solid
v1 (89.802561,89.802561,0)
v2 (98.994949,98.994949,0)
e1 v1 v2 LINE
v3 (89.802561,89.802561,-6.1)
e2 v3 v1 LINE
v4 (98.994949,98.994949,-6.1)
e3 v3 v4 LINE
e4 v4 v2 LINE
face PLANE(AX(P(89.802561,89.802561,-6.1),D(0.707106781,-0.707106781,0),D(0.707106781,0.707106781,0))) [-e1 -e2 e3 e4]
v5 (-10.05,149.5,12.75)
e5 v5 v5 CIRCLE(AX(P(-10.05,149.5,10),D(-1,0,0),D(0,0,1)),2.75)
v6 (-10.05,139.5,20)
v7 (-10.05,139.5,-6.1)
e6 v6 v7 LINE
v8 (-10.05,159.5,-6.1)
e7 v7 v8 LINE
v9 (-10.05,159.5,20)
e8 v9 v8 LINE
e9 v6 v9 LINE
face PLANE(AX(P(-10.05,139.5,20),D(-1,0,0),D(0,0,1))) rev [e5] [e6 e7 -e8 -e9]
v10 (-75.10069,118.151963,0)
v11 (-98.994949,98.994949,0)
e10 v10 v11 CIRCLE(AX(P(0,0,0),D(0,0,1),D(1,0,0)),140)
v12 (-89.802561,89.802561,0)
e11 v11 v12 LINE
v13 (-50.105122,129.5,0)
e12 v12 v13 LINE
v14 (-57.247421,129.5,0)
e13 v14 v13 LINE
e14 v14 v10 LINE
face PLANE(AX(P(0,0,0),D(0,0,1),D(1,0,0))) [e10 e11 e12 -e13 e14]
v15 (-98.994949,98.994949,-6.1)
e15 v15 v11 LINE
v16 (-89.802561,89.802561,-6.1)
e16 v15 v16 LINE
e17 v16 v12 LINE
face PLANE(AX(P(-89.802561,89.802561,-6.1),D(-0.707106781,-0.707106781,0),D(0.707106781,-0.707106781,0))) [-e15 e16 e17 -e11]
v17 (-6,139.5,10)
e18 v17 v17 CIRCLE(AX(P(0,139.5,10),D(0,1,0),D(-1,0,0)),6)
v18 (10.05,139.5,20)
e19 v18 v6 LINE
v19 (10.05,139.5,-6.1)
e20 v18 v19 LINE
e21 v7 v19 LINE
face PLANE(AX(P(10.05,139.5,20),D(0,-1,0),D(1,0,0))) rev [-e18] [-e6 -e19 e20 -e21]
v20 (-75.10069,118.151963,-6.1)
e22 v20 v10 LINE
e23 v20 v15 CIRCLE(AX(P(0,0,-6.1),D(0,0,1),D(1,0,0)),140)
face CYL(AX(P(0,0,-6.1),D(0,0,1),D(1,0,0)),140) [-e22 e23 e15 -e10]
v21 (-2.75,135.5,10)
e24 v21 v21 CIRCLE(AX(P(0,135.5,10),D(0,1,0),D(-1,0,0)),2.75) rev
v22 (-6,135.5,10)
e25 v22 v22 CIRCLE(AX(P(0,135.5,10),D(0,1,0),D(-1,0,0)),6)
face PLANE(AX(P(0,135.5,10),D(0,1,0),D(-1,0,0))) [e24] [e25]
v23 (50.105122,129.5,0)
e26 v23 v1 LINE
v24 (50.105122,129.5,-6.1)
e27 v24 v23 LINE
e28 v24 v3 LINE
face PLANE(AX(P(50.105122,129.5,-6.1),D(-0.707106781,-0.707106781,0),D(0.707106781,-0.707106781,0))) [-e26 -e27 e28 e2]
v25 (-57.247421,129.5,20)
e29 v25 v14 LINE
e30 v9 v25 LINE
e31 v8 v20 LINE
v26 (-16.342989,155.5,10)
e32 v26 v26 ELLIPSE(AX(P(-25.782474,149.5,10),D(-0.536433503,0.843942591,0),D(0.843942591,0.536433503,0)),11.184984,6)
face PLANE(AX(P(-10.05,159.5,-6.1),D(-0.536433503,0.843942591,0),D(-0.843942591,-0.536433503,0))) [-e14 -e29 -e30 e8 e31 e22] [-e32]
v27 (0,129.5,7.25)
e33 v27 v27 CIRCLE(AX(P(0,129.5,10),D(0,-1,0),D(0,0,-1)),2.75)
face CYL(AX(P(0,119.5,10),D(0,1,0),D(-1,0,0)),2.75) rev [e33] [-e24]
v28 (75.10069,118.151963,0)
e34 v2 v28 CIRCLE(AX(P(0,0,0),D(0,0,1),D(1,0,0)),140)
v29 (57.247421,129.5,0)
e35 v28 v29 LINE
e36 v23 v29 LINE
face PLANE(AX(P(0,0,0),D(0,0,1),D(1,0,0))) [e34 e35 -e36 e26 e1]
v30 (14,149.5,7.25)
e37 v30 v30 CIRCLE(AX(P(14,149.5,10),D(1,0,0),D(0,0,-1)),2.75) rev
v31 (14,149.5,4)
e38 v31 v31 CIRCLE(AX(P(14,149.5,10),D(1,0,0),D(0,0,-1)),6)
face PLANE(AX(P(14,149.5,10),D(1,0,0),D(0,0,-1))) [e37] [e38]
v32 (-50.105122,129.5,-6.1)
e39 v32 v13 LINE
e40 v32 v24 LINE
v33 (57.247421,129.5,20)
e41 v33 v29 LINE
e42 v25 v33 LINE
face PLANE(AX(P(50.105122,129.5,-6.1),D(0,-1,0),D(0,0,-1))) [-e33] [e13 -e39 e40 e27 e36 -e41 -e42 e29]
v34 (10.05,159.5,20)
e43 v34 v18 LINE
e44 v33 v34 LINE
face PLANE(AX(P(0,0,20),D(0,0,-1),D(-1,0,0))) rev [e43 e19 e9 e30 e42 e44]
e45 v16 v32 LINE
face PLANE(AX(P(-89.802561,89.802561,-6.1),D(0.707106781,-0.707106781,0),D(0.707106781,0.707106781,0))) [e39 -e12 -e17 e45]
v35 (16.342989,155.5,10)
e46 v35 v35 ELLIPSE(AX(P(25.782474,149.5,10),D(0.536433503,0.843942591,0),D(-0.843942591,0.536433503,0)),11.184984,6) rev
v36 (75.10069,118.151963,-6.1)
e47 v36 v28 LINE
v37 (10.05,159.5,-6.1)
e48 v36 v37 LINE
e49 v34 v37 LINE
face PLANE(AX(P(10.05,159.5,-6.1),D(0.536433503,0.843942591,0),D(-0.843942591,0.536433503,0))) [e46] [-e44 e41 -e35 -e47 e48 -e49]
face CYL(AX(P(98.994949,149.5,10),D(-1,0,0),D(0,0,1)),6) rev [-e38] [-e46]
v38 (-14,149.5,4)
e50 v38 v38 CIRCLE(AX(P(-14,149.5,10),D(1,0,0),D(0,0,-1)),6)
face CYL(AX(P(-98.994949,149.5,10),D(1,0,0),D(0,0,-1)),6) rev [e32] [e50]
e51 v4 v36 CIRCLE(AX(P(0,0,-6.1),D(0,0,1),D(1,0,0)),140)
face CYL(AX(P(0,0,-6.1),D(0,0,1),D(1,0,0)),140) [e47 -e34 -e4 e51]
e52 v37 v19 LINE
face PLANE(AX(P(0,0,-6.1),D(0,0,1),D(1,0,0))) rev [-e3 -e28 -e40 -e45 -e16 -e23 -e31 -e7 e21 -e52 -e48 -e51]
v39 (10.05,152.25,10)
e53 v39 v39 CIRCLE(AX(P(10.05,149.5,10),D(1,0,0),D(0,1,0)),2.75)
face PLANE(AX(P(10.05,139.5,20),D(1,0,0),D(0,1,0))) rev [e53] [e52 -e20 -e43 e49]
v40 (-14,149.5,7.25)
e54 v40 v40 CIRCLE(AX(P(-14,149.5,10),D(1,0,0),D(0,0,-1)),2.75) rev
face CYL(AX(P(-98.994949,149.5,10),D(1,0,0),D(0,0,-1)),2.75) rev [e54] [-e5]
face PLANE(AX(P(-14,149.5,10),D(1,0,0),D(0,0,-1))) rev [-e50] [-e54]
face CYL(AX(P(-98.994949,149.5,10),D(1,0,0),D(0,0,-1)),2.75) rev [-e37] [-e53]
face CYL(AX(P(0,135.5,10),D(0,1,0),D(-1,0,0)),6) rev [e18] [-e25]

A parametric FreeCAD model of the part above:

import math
import FreeCAD as App
import Part
import Sketcher

doc = App.newDocument("Part")
body = doc.addObject("PartDesign::Body", "Body")

# Sketch on XY plane
sketch1 = body.newObject("Sketcher::SketchObject", "Sketch")
sketch1.AttachmentSupport = (doc.getObject("XY_Plane"), [""])
sketch1.MapMode = "FlatFace"
sketch1.addGeometry([
    Part.LineSegment(App.Vector(-90, 90, 0), App.Vector(-50, 130, 0)),  # 0
    Part.LineSegment(App.Vector(-50, 130, 0), App.Vector(50, 130, 0)),  # 1
    Part.LineSegment(App.Vector(50, 130, 0), App.Vector(90, 90, 0)),  # 2
    Part.LineSegment(App.Vector(90, 90, 0), App.Vector(99, 99, 0)),  # 3
    Part.ArcOfCircle(Part.Circle(App.Vector(0, 0, 0), App.Vector(0, 0, 1), 140), math.radians(45), math.radians(135)),  # 4
    Part.LineSegment(App.Vector(-99, 99, 0), App.Vector(-90, 90, 0)),  # 5
], False)
sketch1.addConstraint([
    Sketcher.Constraint("Coincident", 0, 2, 1, 1),
    Sketcher.Constraint("Coincident", 1, 2, 2, 1),
    Sketcher.Constraint("Coincident", 2, 2, 3, 1),
    Sketcher.Constraint("Coincident", 3, 2, 4, 1),
    Sketcher.Constraint("Coincident", 4, 2, 5, 1),
    Sketcher.Constraint("Coincident", 5, 2, 0, 1),
    Sketcher.Constraint("Horizontal", 1),
    Sketcher.Constraint("Coincident", 4, 3, -1, 1),
    Sketcher.Constraint("Symmetric", 2, 2, 5, 2, -2),
    Sketcher.Constraint("Perpendicular", 0, 2),
    Sketcher.Constraint("Perpendicular", 2, 3),
    Sketcher.Constraint("Perpendicular", 3, 5),
    Sketcher.Constraint("Equal", 0, 2),
    Sketcher.Constraint("Radius", 4, 140.0),
    Sketcher.Constraint("Distance", 3, 13.0),
    Sketcher.Constraint("DistanceY", -1, 1, 0, 2, 129.5),
    Sketcher.Constraint("DistanceX", 4, 2, 3, 2, 197.989899),
])
pad1 = body.newObject("PartDesign::Pad", "Pad")
pad1.Profile = sketch1
pad1.Length = 6.1
pad1.Reversed = True

# Sketch on XY plane
sketch2 = body.newObject("Sketcher::SketchObject", "Sketch001")
sketch2.AttachmentSupport = (doc.getObject("XY_Plane"), [""])
sketch2.MapMode = "FlatFace"
sketch2.addGeometry([
    Part.LineSegment(App.Vector(10.1, 139.5, 0), App.Vector(-10.1, 139.5, 0)),  # 0
    Part.LineSegment(App.Vector(-10.1, 139.5, 0), App.Vector(-10.1, 159.5, 0)),  # 1
    Part.LineSegment(App.Vector(-10.1, 159.5, 0), App.Vector(-50.1, 130.7, 0)),  # 2
    Part.LineSegment(App.Vector(-50.1, 130.7, 0), App.Vector(-50.1, 129.5, 0)),  # 3
    Part.LineSegment(App.Vector(-50.1, 129.5, 0), App.Vector(50.1, 129.5, 0)),  # 4
    Part.LineSegment(App.Vector(50.1, 129.5, 0), App.Vector(50.1, 130.7, 0)),  # 5
    Part.LineSegment(App.Vector(50.1, 130.7, 0), App.Vector(10.1, 159.5, 0)),  # 6
    Part.LineSegment(App.Vector(10.1, 159.5, 0), App.Vector(10.1, 139.5, 0)),  # 7
], False)
sketch2.addConstraint([
    Sketcher.Constraint("Coincident", 0, 2, 1, 1),
    Sketcher.Constraint("Coincident", 1, 2, 2, 1),
    Sketcher.Constraint("Coincident", 2, 2, 3, 1),
    Sketcher.Constraint("Coincident", 3, 2, 4, 1),
    Sketcher.Constraint("Coincident", 4, 2, 5, 1),
    Sketcher.Constraint("Coincident", 5, 2, 6, 1),
    Sketcher.Constraint("Coincident", 6, 2, 7, 1),
    Sketcher.Constraint("Coincident", 7, 2, 0, 1),
    Sketcher.Constraint("Horizontal", 0),
    Sketcher.Constraint("Vertical", 1),
    Sketcher.Constraint("Vertical", 3),
    Sketcher.Constraint("Horizontal", 4),
    Sketcher.Constraint("Vertical", 5),
    Sketcher.Constraint("Vertical", 7),
    Sketcher.Constraint("Symmetric", 2, 2, 5, 2, -2),
    Sketcher.Constraint("Symmetric", 1, 2, 6, 2, -2),
    Sketcher.Constraint("DistanceY", 1, 1, 1, 2, 20.0),
    Sketcher.Constraint("DistanceX", 0, 2, 0, 1, 20.1),
    Sketcher.Constraint("DistanceY", 3, 2, 0, 2, 10.0),
    Sketcher.Constraint("DistanceY", -1, 1, 0, 2, 139.5),
    Sketcher.Constraint("DistanceX", 4, 1, 4, 2, 100.210245),
    Sketcher.Constraint("DistanceY", 3, 2, 3, 1, 1.226725),
])
pad2 = body.newObject("PartDesign::Pad", "Pad001")
pad2.Profile = sketch2
pad2.Length = 20

# Sketch on XY plane
sketch3 = body.newObject("Sketcher::SketchObject", "Sketch002")
sketch3.AttachmentSupport = (doc.getObject("XY_Plane"), [""])
sketch3.MapMode = "FlatFace"
sketch3.addGeometry([
    Part.LineSegment(App.Vector(-10, 160, 0), App.Vector(-75, 118, 0)),  # 0
    Part.ArcOfCircle(Part.Circle(App.Vector(0, 0, 0), App.Vector(0, 0, 1), 140), math.radians(122.44), math.radians(135)),  # 1
    Part.LineSegment(App.Vector(-99, 99, 0), App.Vector(-90, 90, 0)),  # 2
    Part.LineSegment(App.Vector(-90, 90, 0), App.Vector(-50, 130, 0)),  # 3
    Part.LineSegment(App.Vector(-50, 130, 0), App.Vector(50, 130, 0)),  # 4
    Part.LineSegment(App.Vector(50, 130, 0), App.Vector(90, 90, 0)),  # 5
    Part.LineSegment(App.Vector(90, 90, 0), App.Vector(99, 99, 0)),  # 6
    Part.ArcOfCircle(Part.Circle(App.Vector(0, 0, 0), App.Vector(0, 0, 1), 140), math.radians(45), math.radians(57.56)),  # 7
    Part.LineSegment(App.Vector(75, 118, 0), App.Vector(10, 160, 0)),  # 8
    Part.LineSegment(App.Vector(10, 160, 0), App.Vector(10, 140, 0)),  # 9
    Part.LineSegment(App.Vector(10, 140, 0), App.Vector(-10, 140, 0)),  # 10
    Part.LineSegment(App.Vector(-10, 140, 0), App.Vector(-10, 160, 0)),  # 11
], False)
sketch3.addConstraint([
    Sketcher.Constraint("Tangent", 0, 2, 1, 1),
    Sketcher.Constraint("Coincident", 1, 2, 2, 1),
    Sketcher.Constraint("Coincident", 2, 2, 3, 1),
    Sketcher.Constraint("Coincident", 3, 2, 4, 1),
    Sketcher.Constraint("Coincident", 4, 2, 5, 1),
    Sketcher.Constraint("Coincident", 5, 2, 6, 1),
    Sketcher.Constraint("Coincident", 6, 2, 7, 1),
    Sketcher.Constraint("Tangent", 7, 2, 8, 1),
    Sketcher.Constraint("Coincident", 8, 2, 9, 1),
    Sketcher.Constraint("Coincident", 9, 2, 10, 1),
    Sketcher.Constraint("Coincident", 10, 2, 11, 1),
    Sketcher.Constraint("Coincident", 11, 2, 0, 1),
    Sketcher.Constraint("Horizontal", 4),
    Sketcher.Constraint("Vertical", 9),
    Sketcher.Constraint("Horizontal", 10),
    Sketcher.Constraint("Vertical", 11),
    Sketcher.Constraint("Coincident", 1, 3, -1, 1),
    Sketcher.Constraint("Coincident", 7, 3, -1, 1),
    Sketcher.Constraint("Equal", 1, 7),
    Sketcher.Constraint("Symmetric", 2, 2, 5, 2, -2),
    Sketcher.Constraint("Symmetric", 8, 2, 11, 2, -2),
    Sketcher.Constraint("Perpendicular", 2, 3),
    Sketcher.Constraint("Perpendicular", 3, 5),
    Sketcher.Constraint("Perpendicular", 5, 6),
    Sketcher.Constraint("Equal", 3, 5),
    Sketcher.Constraint("Radius", 1, 140.0),
    Sketcher.Constraint("DistanceY", 9, 2, 9, 1, 20.0),
    Sketcher.Constraint("Distance", 2, 13.0),
    Sketcher.Constraint("DistanceX", 10, 2, 10, 1, 20.1),
    Sketcher.Constraint("DistanceY", 4, 2, 8, 2, 30.0),
    Sketcher.Constraint("DistanceY", -1, 1, 3, 2, 129.5),
    Sketcher.Constraint("DistanceY", 2, 2, 0, 2, 28.349402),
])
pad3 = body.newObject("PartDesign::Pad", "Pad002")
pad3.Profile = sketch3
pad3.Length = 6.1
pad3.Reversed = True

# Sketch on XY plane
sketch4 = body.newObject("Sketcher::SketchObject", "Sketch003")
sketch4.AttachmentSupport = (doc.getObject("XY_Plane"), [""])
sketch4.MapMode = "FlatFace"
sketch4.addGeometry([
    Part.LineSegment(App.Vector(-50.1, 129.5, 0), App.Vector(-50.1, 130.7, 0)),  # 0
    Part.LineSegment(App.Vector(-50.1, 130.7, 0), App.Vector(-10.1, 159.5, 0)),  # 1
    Part.LineSegment(App.Vector(-10.1, 159.5, 0), App.Vector(-57.2, 129.5, 0)),  # 2
    Part.LineSegment(App.Vector(-57.2, 129.5, 0), App.Vector(-50.1, 129.5, 0)),  # 3
    Part.LineSegment(App.Vector(50.1, 129.5, 0), App.Vector(57.2, 129.5, 0)),  # 4
    Part.LineSegment(App.Vector(57.2, 129.5, 0), App.Vector(10.1, 159.5, 0)),  # 5
    Part.LineSegment(App.Vector(10.1, 159.5, 0), App.Vector(50.1, 130.7, 0)),  # 6
    Part.LineSegment(App.Vector(50.1, 130.7, 0), App.Vector(50.1, 129.5, 0)),  # 7
], False)
sketch4.addConstraint([
    Sketcher.Constraint("Coincident", 0, 2, 1, 1),
    Sketcher.Constraint("Coincident", 1, 2, 2, 1),
    Sketcher.Constraint("Coincident", 2, 2, 3, 1),
    Sketcher.Constraint("Coincident", 3, 2, 0, 1),
    Sketcher.Constraint("Coincident", 4, 2, 5, 1),
    Sketcher.Constraint("Coincident", 5, 2, 6, 1),
    Sketcher.Constraint("Coincident", 6, 2, 7, 1),
    Sketcher.Constraint("Coincident", 7, 2, 4, 1),
    Sketcher.Constraint("Vertical", 0),
    Sketcher.Constraint("Horizontal", 3),
    Sketcher.Constraint("Horizontal", 4),
    Sketcher.Constraint("Vertical", 7),
    Sketcher.Constraint("Symmetric", 2, 2, 4, 2, -2),
    Sketcher.Constraint("Symmetric", 1, 2, 5, 2, -2),
    Sketcher.Constraint("Symmetric", 0, 2, 6, 2, -2),
    Sketcher.Constraint("DistanceY", 2, 2, 1, 2, 30.0),
    Sketcher.Constraint("DistanceY", -1, 1, 1, 2, 159.5),
    Sketcher.Constraint("DistanceX", 1, 2, 5, 2, 20.1),
    Sketcher.Constraint("DistanceX", 3, 1, 3, 2, 7.142298),
    Sketcher.Constraint("Distance", 2, 55.924919),
    Sketcher.Constraint("DistanceY", 0, 1, 0, 2, 1.226725),
])
pad4 = body.newObject("PartDesign::Pad", "Pad003")
pad4.Profile = sketch4
pad4.Length = 20

# Sketch on XY plane
sketch5 = body.newObject("Sketcher::SketchObject", "Sketch004")
sketch5.AttachmentSupport = (doc.getObject("XY_Plane"), [""])
sketch5.MapMode = "FlatFace"
sketch5.addGeometry([
    Part.LineSegment(App.Vector(-10, 150, 0), App.Vector(-10, 140, 0)),
    Part.LineSegment(App.Vector(-10, 140, 0), App.Vector(10, 140, 0)),
    Part.LineSegment(App.Vector(10, 140, 0), App.Vector(10, 150, 0)),
    Part.LineSegment(App.Vector(10, 150, 0), App.Vector(-10, 150, 0)),
], False)
sketch5.addConstraint([
    Sketcher.Constraint("Coincident", 0, 2, 1, 1),
    Sketcher.Constraint("Coincident", 1, 2, 2, 1),
    Sketcher.Constraint("Coincident", 2, 2, 3, 1),
    Sketcher.Constraint("Coincident", 3, 2, 0, 1),
    Sketcher.Constraint("Vertical", 0),
    Sketcher.Constraint("Horizontal", 1),
    Sketcher.Constraint("Vertical", 2),
    Sketcher.Constraint("Horizontal", 3),
    Sketcher.Constraint("DistanceY", 0, 2, 0, 1, 10.0),
    Sketcher.Constraint("DistanceX", 1, 1, 1, 2, 20.1),
    Sketcher.Constraint("DistanceY", -1, 1, 0, 2, 139.5),
    Sketcher.Constraint("DistanceX", 0, 2, -1, 1, 10.05),
])
pocket1 = body.newObject("PartDesign::Pocket", "Pocket")
pocket1.Profile = sketch5
pocket1.Type = "ThroughAll"
pocket1.Midplane = True

# Sketch on XZ plane
sketch6 = body.newObject("Sketcher::SketchObject", "Sketch005")
sketch6.AttachmentSupport = (doc.getObject("XZ_Plane"), [""])
sketch6.MapMode = "FlatFace"
sketch6.AttachmentOffset = App.Placement(App.Vector(0, 0, -139.5), App.Rotation())
sketch6.addGeometry(Part.Circle(App.Vector(0, 10, 0), App.Vector(0, 0, 1), 2.8), False)
sketch6.addConstraint([
    Sketcher.Constraint("PointOnObject", 0, 3, -2),
    Sketcher.Constraint("Diameter", 0, 5.5),
    Sketcher.Constraint("DistanceY", -1, 1, 0, 3, 10.0),
])
pocket2 = body.newObject("PartDesign::Pocket", "Pocket001")
pocket2.Profile = sketch6
pocket2.Length = 20
pocket2.Reversed = True

# Sketch on XZ plane
sketch7 = body.newObject("Sketcher::SketchObject", "Sketch006")
sketch7.AttachmentSupport = (doc.getObject("XZ_Plane"), [""])
sketch7.MapMode = "FlatFace"
sketch7.AttachmentOffset = App.Placement(App.Vector(0, 0, -139.5), App.Rotation())
sketch7.addGeometry(Part.Circle(App.Vector(0, 10, 0), App.Vector(0, 0, 1), 6), False)
sketch7.addConstraint([
    Sketcher.Constraint("PointOnObject", 0, 3, -2),
    Sketcher.Constraint("Diameter", 0, 12.0),
    Sketcher.Constraint("DistanceY", -1, 1, 0, 3, 10.0),
])
pocket3 = body.newObject("PartDesign::Pocket", "Pocket002")
pocket3.Profile = sketch7
pocket3.Length = 4
pocket3.Reversed = True

# Sketch on YZ plane
sketch8 = body.newObject("Sketcher::SketchObject", "Sketch007")
sketch8.AttachmentSupport = (doc.getObject("YZ_Plane"), [""])
sketch8.MapMode = "FlatFace"
sketch8.addGeometry(Part.Circle(App.Vector(149.5, 10, 0), App.Vector(0, 0, 1), 2.8), False)
sketch8.addConstraint([
    Sketcher.Constraint("Diameter", 0, 5.5),
    Sketcher.Constraint("DistanceY", -1, 1, 0, 3, 10.0),
    Sketcher.Constraint("DistanceX", -1, 1, 0, 3, 149.5),
])
pocket4 = body.newObject("PartDesign::Pocket", "Pocket003")
pocket4.Profile = sketch8
pocket4.Type = "ThroughAll"
pocket4.Midplane = True

# Sketch on YZ plane
sketch9 = body.newObject("Sketcher::SketchObject", "Sketch008")
sketch9.AttachmentSupport = (doc.getObject("YZ_Plane"), [""])
sketch9.MapMode = "FlatFace"
sketch9.AttachmentOffset = App.Placement(App.Vector(0, 0, 14), App.Rotation())
sketch9.addGeometry(Part.Circle(App.Vector(150, 10, 0), App.Vector(0, 0, 1), 6), False)
sketch9.addConstraint([
    Sketcher.Constraint("Diameter", 0, 12.0),
    Sketcher.Constraint("DistanceY", -1, 1, 0, 3, 10.0),
    Sketcher.Constraint("DistanceX", -1, 1, 0, 3, 149.5),
])
pocket5 = body.newObject("PartDesign::Pocket", "Pocket004")
pocket5.Profile = sketch9
pocket5.Type = "ThroughAll"
pocket5.Reversed = True

# Sketch on YZ plane
sketch10 = body.newObject("Sketcher::SketchObject", "Sketch009")
sketch10.AttachmentSupport = (doc.getObject("YZ_Plane"), [""])
sketch10.MapMode = "FlatFace"
sketch10.AttachmentOffset = App.Placement(App.Vector(0, 0, -14), App.Rotation())
sketch10.addGeometry(Part.Circle(App.Vector(150, 10, 0), App.Vector(0, 0, 1), 6), False)
sketch10.addConstraint([
    Sketcher.Constraint("Diameter", 0, 12.0),
    Sketcher.Constraint("DistanceY", -1, 1, 0, 3, 10.0),
    Sketcher.Constraint("DistanceX", -1, 1, 0, 3, 149.5),
])
pocket6 = body.newObject("PartDesign::Pocket", "Pocket005")
pocket6.Profile = sketch10
pocket6.Type = "ThroughAll"

doc.recompute()
